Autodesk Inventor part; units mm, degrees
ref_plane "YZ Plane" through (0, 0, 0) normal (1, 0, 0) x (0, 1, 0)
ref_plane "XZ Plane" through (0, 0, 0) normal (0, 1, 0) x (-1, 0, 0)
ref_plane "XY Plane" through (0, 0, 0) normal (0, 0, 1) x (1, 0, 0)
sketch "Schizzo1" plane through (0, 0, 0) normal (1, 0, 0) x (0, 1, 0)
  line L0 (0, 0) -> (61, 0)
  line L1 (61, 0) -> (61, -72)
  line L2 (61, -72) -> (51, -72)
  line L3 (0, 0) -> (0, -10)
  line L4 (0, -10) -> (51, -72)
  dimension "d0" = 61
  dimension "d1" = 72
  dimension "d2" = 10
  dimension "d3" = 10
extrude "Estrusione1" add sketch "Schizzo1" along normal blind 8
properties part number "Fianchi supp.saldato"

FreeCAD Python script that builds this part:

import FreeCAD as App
import Part
import Sketcher


def add_polygon(sketch, points):
    """Adds a closed chain of lines whose ends are joined by coincident constraints."""
    first, n = sketch.GeometryCount, len(points)
    for a, b in zip(points, points[1:] + points[:1]):
        sketch.addGeometry(Part.LineSegment(App.Vector(*a, 0), App.Vector(*b, 0)), False)
    for i in range(n):
        sketch.addConstraint(Sketcher.Constraint("Coincident", first + i, 2, first + (i + 1) % n, 1))

doc = App.newDocument("Part")
body = doc.addObject("PartDesign::Body", "Body")

# Sketch on YZ plane
sketch1 = body.newObject("Sketcher::SketchObject", "Sketch")
sketch1.AttachmentSupport = (doc.getObject("YZ_Plane"), [""])
sketch1.MapMode = "FlatFace"
add_polygon(sketch1, [(61, 0), (0, 0), (0, -10), (51, -72), (61, -72)])  # lines 0-4
sketch1.addConstraint(Sketcher.Constraint("Horizontal", 0))
sketch1.addConstraint(Sketcher.Constraint("Vertical", 1))
sketch1.addConstraint(Sketcher.Constraint("Horizontal", 3))
sketch1.addConstraint(Sketcher.Constraint("Vertical", 4))
sketch1.addConstraint(Sketcher.Constraint("Coincident", 0, 2, -1, 1))
sketch1.addConstraint(Sketcher.Constraint("Equal", 3, 1))
sketch1.addConstraint(Sketcher.Constraint("DistanceX", 0, 2, 0, 1, 61.0))
sketch1.addConstraint(Sketcher.Constraint("DistanceX", 3, 1, 3, 2, 10.0))
sketch1.addConstraint(Sketcher.Constraint("DistanceY", 4, 1, 4, 2, 72.0))
pad1 = body.newObject("PartDesign::Pad", "Pad")
pad1.Profile = sketch1
pad1.Length = 8

doc.recompute()
